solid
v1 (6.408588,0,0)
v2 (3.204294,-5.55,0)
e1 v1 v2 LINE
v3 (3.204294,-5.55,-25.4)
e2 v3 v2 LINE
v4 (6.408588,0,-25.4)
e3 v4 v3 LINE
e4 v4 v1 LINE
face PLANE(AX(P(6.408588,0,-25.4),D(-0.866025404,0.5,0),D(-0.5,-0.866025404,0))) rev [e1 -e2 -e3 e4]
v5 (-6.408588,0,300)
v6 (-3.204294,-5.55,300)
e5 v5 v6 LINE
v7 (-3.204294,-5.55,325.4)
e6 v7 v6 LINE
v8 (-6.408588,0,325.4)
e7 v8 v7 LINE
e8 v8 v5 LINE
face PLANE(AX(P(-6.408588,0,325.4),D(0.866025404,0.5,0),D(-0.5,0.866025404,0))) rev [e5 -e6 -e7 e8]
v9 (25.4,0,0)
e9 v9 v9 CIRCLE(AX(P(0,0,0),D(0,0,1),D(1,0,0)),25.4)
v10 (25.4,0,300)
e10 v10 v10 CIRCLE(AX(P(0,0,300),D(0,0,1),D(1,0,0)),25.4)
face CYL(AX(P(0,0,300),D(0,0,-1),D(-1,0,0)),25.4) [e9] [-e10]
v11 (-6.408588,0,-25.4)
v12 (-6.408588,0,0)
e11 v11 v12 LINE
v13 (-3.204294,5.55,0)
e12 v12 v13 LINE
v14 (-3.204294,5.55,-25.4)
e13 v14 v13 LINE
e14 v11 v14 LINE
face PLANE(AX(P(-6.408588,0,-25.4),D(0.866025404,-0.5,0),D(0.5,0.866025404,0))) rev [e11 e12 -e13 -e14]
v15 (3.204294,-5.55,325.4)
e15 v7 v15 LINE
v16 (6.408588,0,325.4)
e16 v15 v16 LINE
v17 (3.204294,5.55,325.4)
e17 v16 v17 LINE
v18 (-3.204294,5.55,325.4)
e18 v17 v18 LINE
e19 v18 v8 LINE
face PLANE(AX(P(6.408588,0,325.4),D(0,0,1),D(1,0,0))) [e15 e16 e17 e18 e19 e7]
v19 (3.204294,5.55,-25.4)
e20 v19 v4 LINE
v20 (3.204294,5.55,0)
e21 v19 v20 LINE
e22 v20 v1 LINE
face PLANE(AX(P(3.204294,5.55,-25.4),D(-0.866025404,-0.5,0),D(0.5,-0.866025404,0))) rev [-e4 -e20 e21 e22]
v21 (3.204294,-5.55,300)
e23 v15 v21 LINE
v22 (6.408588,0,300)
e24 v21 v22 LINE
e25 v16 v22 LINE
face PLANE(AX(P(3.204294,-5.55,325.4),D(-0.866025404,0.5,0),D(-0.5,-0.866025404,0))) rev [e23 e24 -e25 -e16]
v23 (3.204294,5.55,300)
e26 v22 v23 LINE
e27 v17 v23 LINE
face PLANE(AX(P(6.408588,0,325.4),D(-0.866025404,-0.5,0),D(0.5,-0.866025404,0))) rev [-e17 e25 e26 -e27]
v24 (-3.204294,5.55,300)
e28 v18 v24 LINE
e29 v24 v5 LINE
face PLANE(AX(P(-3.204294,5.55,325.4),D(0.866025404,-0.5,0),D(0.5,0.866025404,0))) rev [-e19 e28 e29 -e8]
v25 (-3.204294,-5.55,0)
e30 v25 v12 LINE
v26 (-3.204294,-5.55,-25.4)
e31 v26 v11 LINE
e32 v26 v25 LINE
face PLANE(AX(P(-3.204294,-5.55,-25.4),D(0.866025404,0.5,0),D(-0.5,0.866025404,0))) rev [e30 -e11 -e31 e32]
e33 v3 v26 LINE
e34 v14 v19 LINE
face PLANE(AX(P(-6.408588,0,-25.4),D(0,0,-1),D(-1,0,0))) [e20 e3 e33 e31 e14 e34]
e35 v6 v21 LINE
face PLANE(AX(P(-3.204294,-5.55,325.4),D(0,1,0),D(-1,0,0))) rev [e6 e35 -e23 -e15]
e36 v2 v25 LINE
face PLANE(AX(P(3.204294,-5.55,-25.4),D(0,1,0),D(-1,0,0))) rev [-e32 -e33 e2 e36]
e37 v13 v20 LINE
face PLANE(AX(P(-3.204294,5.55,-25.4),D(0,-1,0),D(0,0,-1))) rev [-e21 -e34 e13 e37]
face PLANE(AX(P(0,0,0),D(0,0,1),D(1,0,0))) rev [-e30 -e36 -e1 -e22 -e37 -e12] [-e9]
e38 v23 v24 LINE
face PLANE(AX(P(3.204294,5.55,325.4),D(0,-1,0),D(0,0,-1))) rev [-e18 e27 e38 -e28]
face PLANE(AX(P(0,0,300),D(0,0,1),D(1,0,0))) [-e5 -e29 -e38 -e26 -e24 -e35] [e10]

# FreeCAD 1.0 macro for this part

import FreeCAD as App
import Part
import Sketcher
from FreeCAD import Vector
Q = App.Units.Quantity

doc = App.newDocument("Part")
params = doc.addObject("Spreadsheet::Sheet", "Params")
for row, (alias, value) in enumerate([
    ("sketch1_diameter", "2 in"),
    ("pad1_length", "300 mm"),
    ("pad2_length", "1 in"),
    ("pad3_length", "1 in"),
], start=1):
    params.set(f"A{row}", alias)
    params.set(f"B{row}", "=" + value)
    params.setAlias(f"B{row}", alias)

body = doc.addObject("PartDesign::Body", "Body")

sketch1 = body.newObject("Sketcher::SketchObject", "Sketch")
sketch1.AttachmentSupport = (doc.getObject("XY_Plane"), [""])
sketch1.MapMode = "FlatFace"
sketch1.addGeometry(Part.Circle(Vector(0, 0, 0), Vector(0, 0, 1), 25), False)
sketch1.addConstraint([
    Sketcher.Constraint("Coincident", 0, 3, -1, 1),
    Sketcher.Constraint("Diameter", 0, Q("2 in")),
])
sketch1.setExpression("Constraints[1]", "Params.sketch1_diameter")
pad1 = body.newObject("PartDesign::Pad", "Pad")
pad1.Profile = sketch1
pad1.setExpression("Length", "Params.pad1_length")

sketch2 = body.newObject("Sketcher::SketchObject", "Sketch001")
sketch2.AttachmentSupport = (doc.getObject("XY_Plane"), [""])
sketch2.MapMode = "FlatFace"
sketch2.AttachmentOffset = App.Placement(Vector(0, 0, 300), App.Rotation())
sketch2.addGeometry([
    Part.LineSegment(Vector(6, 0, 0), Vector(3, 6, 0)),
    Part.LineSegment(Vector(3, 6, 0), Vector(-3, 6, 0)),
    Part.LineSegment(Vector(-3, 6, 0), Vector(-6, 0, 0)),
    Part.LineSegment(Vector(-6, 0, 0), Vector(-3, -6, 0)),
    Part.LineSegment(Vector(-3, -6, 0), Vector(3, -6, 0)),
    Part.LineSegment(Vector(3, -6, 0), Vector(6, 0, 0)),
], False)
sketch2.addConstraint([
    Sketcher.Constraint("Coincident", 0, 2, 1, 1),
    Sketcher.Constraint("Coincident", 1, 2, 2, 1),
    Sketcher.Constraint("Coincident", 2, 2, 3, 1),
    Sketcher.Constraint("Coincident", 3, 2, 4, 1),
    Sketcher.Constraint("Coincident", 4, 2, 5, 1),
    Sketcher.Constraint("Coincident", 5, 2, 0, 1),
    Sketcher.Constraint("Horizontal", 1),
    Sketcher.Constraint("Horizontal", 4),
    Sketcher.Constraint("Symmetric", 0, 2, 3, 2, -1, 1),
    Sketcher.Constraint("Symmetric", 2, 2, 5, 2, -1, 1),
    Sketcher.Constraint("PointOnObject", 2, 2, -1),
    Sketcher.Constraint("Parallel", 2, 5),
    Sketcher.Constraint("Vertical", 1, 2, 3, 2),
    Sketcher.Constraint("Angle", 0, Q("120 deg")),
    Sketcher.Constraint("DistanceY", -1, 1, 0, 2, Q("5.55 mm")),
    Sketcher.Constraint("DistanceX", 1, 2, 1, 1, Q("6.408588 mm")),
])
pad2 = body.newObject("PartDesign::Pad", "Pad001")
pad2.Profile = sketch2
pad2.setExpression("Length", "Params.pad2_length")

sketch3 = body.newObject("Sketcher::SketchObject", "Sketch002")
sketch3.AttachmentSupport = (doc.getObject("XY_Plane"), [""])
sketch3.MapMode = "FlatFace"
sketch3.addGeometry([
    Part.LineSegment(Vector(-6, 0, 0), Vector(-3, 6, 0)),
    Part.LineSegment(Vector(-3, 6, 0), Vector(3, 6, 0)),
    Part.LineSegment(Vector(3, 6, 0), Vector(6, 0, 0)),
    Part.LineSegment(Vector(6, 0, 0), Vector(3, -6, 0)),
    Part.LineSegment(Vector(3, -6, 0), Vector(-3, -6, 0)),
    Part.LineSegment(Vector(-3, -6, 0), Vector(-6, 0, 0)),
], False)
sketch3.addConstraint([
    Sketcher.Constraint("Coincident", 0, 2, 1, 1),
    Sketcher.Constraint("Coincident", 1, 2, 2, 1),
    Sketcher.Constraint("Coincident", 2, 2, 3, 1),
    Sketcher.Constraint("Coincident", 3, 2, 4, 1),
    Sketcher.Constraint("Coincident", 4, 2, 5, 1),
    Sketcher.Constraint("Coincident", 5, 2, 0, 1),
    Sketcher.Constraint("Horizontal", 1),
    Sketcher.Constraint("Horizontal", 4),
    Sketcher.Constraint("Symmetric", 0, 2, 3, 2, -1, 1),
    Sketcher.Constraint("Symmetric", 2, 2, 5, 2, -1, 1),
    Sketcher.Constraint("PointOnObject", 2, 2, -1),
    Sketcher.Constraint("Parallel", 2, 5),
    Sketcher.Constraint("Vertical", 1, 2, 3, 2),
    Sketcher.Constraint("Angle", 0, Q("60 deg")),
    Sketcher.Constraint("DistanceY", -1, 1, 0, 2, Q("5.55 mm")),
    Sketcher.Constraint("DistanceX", 1, 1, 1, 2, Q("6.408588 mm")),
])
pad3 = body.newObject("PartDesign::Pad", "Pad002")
pad3.Profile = sketch3
pad3.setExpression("Length", "Params.pad3_length")
pad3.Reversed = True

doc.recompute()
